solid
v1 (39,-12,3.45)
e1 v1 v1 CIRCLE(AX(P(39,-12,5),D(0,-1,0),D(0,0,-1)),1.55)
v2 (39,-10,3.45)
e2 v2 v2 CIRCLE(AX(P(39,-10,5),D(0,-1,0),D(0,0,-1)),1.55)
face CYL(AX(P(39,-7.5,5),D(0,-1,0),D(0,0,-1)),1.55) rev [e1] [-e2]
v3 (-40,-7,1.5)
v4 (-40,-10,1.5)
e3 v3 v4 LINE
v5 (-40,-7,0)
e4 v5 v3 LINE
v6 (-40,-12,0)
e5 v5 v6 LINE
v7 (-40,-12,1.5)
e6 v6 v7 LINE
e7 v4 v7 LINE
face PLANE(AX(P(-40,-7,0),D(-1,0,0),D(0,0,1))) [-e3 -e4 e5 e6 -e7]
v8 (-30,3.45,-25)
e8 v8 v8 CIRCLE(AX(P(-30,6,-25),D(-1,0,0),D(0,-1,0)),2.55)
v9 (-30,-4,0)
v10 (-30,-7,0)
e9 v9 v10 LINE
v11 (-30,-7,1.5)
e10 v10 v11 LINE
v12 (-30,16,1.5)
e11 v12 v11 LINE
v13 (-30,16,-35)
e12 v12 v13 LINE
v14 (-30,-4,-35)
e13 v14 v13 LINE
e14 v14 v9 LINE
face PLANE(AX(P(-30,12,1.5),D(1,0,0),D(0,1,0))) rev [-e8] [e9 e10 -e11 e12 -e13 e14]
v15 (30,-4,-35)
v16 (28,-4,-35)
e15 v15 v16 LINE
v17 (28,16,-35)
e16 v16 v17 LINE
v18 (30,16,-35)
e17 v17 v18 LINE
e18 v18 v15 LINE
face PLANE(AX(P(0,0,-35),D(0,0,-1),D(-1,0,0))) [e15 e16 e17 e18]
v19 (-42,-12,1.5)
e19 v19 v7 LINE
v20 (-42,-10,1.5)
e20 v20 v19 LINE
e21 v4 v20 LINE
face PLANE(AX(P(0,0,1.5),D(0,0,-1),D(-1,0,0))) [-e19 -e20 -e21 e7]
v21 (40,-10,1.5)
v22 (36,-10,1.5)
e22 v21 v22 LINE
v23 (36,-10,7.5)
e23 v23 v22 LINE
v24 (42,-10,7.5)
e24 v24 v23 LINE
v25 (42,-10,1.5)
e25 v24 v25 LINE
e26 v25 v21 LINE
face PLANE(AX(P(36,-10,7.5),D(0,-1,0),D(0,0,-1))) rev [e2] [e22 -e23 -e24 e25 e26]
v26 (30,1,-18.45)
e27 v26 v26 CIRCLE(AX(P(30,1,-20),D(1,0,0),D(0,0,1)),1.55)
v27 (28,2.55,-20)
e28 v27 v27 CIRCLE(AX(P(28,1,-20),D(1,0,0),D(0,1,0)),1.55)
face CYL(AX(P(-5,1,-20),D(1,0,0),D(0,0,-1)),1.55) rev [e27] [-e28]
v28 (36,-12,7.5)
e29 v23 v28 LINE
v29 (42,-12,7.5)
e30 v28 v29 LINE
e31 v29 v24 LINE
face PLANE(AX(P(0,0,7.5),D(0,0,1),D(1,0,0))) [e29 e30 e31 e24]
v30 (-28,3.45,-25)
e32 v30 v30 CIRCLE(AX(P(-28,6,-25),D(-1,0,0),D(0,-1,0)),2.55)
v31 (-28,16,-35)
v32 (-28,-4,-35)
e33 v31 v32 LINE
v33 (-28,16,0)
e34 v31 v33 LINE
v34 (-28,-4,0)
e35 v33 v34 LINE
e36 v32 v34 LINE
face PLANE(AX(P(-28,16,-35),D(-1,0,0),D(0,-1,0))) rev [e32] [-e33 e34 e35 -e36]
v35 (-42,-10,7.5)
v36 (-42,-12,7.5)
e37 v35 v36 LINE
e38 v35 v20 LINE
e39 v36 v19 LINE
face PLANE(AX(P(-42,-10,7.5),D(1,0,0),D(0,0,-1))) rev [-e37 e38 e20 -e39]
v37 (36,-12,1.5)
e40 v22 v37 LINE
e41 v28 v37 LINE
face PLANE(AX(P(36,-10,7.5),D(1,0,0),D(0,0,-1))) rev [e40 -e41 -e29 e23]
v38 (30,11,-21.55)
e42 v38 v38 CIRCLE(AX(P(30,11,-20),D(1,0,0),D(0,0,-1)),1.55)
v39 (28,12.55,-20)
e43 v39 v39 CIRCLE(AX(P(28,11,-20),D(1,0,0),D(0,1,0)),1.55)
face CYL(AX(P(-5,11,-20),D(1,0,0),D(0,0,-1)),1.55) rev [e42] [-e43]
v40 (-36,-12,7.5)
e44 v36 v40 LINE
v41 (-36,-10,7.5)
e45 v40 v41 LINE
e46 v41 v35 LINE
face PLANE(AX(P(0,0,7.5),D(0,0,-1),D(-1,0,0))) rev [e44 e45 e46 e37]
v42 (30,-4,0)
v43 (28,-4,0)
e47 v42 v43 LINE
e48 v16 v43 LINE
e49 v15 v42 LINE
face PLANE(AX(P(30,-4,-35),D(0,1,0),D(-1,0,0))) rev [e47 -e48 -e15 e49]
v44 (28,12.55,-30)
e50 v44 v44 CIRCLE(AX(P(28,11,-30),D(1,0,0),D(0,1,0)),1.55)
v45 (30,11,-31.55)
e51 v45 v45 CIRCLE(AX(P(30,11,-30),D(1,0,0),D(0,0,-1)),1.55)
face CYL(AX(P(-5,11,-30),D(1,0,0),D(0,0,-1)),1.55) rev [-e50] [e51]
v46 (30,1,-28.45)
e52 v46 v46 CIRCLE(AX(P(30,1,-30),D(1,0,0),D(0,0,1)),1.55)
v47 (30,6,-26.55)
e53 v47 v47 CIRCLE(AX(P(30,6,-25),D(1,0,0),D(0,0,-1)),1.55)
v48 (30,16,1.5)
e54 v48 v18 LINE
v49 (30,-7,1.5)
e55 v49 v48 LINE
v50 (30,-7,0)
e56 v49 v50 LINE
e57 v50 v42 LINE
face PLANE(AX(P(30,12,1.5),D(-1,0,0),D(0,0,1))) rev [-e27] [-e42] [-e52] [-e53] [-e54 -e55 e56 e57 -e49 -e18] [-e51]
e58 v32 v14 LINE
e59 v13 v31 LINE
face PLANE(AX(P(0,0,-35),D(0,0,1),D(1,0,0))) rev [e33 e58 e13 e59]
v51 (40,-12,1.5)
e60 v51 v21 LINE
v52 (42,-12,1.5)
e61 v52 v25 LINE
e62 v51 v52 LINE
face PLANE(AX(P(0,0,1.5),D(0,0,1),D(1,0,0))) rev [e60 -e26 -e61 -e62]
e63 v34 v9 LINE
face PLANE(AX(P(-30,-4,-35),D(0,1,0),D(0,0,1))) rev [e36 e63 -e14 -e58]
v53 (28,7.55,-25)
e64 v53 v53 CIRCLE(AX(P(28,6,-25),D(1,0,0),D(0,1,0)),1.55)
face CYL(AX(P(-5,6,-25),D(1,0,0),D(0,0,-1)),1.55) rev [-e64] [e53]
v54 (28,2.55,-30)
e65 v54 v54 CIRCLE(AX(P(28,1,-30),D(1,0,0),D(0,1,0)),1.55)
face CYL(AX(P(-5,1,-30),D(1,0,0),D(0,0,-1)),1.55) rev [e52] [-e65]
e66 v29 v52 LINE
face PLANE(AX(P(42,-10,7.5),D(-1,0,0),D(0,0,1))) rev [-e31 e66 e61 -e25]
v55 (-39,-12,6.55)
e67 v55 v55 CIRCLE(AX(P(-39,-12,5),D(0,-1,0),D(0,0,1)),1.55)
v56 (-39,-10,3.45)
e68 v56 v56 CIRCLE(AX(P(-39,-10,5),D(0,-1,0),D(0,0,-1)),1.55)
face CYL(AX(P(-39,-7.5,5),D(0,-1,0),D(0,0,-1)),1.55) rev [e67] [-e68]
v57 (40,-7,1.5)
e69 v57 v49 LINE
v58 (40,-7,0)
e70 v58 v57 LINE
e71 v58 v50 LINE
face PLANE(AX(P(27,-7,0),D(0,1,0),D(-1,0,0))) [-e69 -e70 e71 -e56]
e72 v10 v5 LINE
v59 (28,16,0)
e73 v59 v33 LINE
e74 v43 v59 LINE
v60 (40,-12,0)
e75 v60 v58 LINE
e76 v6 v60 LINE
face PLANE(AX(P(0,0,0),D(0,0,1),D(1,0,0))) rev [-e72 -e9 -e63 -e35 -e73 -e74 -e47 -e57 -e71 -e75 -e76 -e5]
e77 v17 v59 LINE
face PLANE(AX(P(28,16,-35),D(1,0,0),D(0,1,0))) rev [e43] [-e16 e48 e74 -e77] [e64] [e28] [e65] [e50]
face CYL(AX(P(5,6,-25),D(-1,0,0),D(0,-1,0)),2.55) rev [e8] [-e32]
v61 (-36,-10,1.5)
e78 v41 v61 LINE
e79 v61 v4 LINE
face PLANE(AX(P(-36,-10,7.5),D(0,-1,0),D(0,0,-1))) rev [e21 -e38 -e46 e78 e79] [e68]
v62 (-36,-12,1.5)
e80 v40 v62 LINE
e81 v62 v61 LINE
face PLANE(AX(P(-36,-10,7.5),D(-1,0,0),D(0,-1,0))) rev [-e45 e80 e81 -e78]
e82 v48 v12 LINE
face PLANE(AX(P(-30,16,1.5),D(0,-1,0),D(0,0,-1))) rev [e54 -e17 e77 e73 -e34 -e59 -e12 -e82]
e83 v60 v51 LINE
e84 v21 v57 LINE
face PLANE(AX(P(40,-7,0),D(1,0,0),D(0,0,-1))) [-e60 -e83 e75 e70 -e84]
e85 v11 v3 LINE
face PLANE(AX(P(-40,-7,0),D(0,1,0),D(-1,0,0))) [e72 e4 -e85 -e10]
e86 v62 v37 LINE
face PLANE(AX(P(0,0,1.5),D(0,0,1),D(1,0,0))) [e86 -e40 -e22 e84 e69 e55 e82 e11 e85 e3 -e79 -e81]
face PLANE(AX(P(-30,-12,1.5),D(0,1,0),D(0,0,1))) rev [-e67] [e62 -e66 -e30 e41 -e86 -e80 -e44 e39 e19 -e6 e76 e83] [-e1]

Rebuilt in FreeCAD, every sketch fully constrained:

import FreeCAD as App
import Part
import Sketcher
from FreeCAD import Vector

doc = App.newDocument("Part")
body = doc.addObject("PartDesign::Body", "Body")

# Sketch on XY plane
sketch1 = body.newObject("Sketcher::SketchObject", "Sketch")
sketch1.AttachmentSupport = (doc.getObject("XY_Plane"), [""])
sketch1.MapMode = "FlatFace"
sketch1.addGeometry([
    Part.LineSegment(Vector(-30, -12, 0), Vector(30, -12, 0)),
    Part.LineSegment(Vector(30, -12, 0), Vector(30, 16, 0)),
    Part.LineSegment(Vector(30, 16, 0), Vector(-30, 16, 0)),
    Part.LineSegment(Vector(-30, 16, 0), Vector(-30, -12, 0)),
], False)
sketch1.addConstraint([
    Sketcher.Constraint("Coincident", 0, 2, 1, 1),
    Sketcher.Constraint("Coincident", 1, 2, 2, 1),
    Sketcher.Constraint("Coincident", 2, 2, 3, 1),
    Sketcher.Constraint("Coincident", 3, 2, 0, 1),
    Sketcher.Constraint("Horizontal", 0),
    Sketcher.Constraint("Vertical", 1),
    Sketcher.Constraint("Horizontal", 2),
    Sketcher.Constraint("Vertical", 3),
    Sketcher.Constraint("DistanceX", 0, 1, 0, 2, 60.0),
    Sketcher.Constraint("DistanceY", 1, 1, 1, 2, 28.0),
    Sketcher.Constraint("DistanceX", -1, 1, 0, 2, 30.0),
    Sketcher.Constraint("DistanceY", 0, 2, -1, 1, 12.0),
])
pad1 = body.newObject("PartDesign::Pad", "Pad")
pad1.Profile = sketch1
pad1.Length = 1.5

# Sketch on XY plane
sketch2 = body.newObject("Sketcher::SketchObject", "Sketch001")
sketch2.AttachmentSupport = (doc.getObject("XY_Plane"), [""])
sketch2.MapMode = "FlatFace"
sketch2.AttachmentOffset = App.Placement(Vector(0, 0, 1.5), App.Rotation())
sketch2.addGeometry([
    Part.LineSegment(Vector(-27, -7, 0), Vector(-40, -7, 0)),  # 0
    Part.LineSegment(Vector(-40, -7, 0), Vector(-40, -12, 0)),  # 1
    Part.LineSegment(Vector(-40, -12, 0), Vector(-27, -12, 0)),  # 2
    Part.LineSegment(Vector(-27, -12, 0), Vector(-27, -7, 0)),  # 3
    Part.LineSegment(Vector(40, -12, 0), Vector(40, -7, 0)),  # 4
    Part.LineSegment(Vector(40, -7, 0), Vector(27, -7, 0)),  # 5
    Part.LineSegment(Vector(27, -7, 0), Vector(27, -12, 0)),  # 6
    Part.LineSegment(Vector(27, -12, 0), Vector(40, -12, 0)),  # 7
], False)
sketch2.addConstraint([
    Sketcher.Constraint("Coincident", 0, 2, 1, 1),
    Sketcher.Constraint("Coincident", 1, 2, 2, 1),
    Sketcher.Constraint("Coincident", 2, 2, 3, 1),
    Sketcher.Constraint("Coincident", 3, 2, 0, 1),
    Sketcher.Constraint("Coincident", 4, 2, 5, 1),
    Sketcher.Constraint("Coincident", 5, 2, 6, 1),
    Sketcher.Constraint("Coincident", 6, 2, 7, 1),
    Sketcher.Constraint("Coincident", 7, 2, 4, 1),
    Sketcher.Constraint("Horizontal", 0),
    Sketcher.Constraint("Vertical", 1),
    Sketcher.Constraint("Horizontal", 2),
    Sketcher.Constraint("Vertical", 3),
    Sketcher.Constraint("Vertical", 4),
    Sketcher.Constraint("Horizontal", 5),
    Sketcher.Constraint("Vertical", 6),
    Sketcher.Constraint("Horizontal", 7),
    Sketcher.Constraint("Symmetric", 0, 2, 4, 2, -2),
    Sketcher.Constraint("Symmetric", 2, 2, 6, 2, -2),
    Sketcher.Constraint("DistanceX", 0, 2, 0, 1, 13.0),
    Sketcher.Constraint("DistanceY", 1, 2, 1, 1, 5.0),
    Sketcher.Constraint("DistanceX", 0, 2, -1, 1, 40.0),
    Sketcher.Constraint("DistanceY", 0, 2, -1, 1, 7.0),
])
pad2 = body.newObject("PartDesign::Pad", "Pad001")
pad2.Profile = sketch2
pad2.Length = 1.5
pad2.Reversed = True

# Sketch on XY plane
sketch3 = body.newObject("Sketcher::SketchObject", "Sketch002")
sketch3.AttachmentSupport = (doc.getObject("XY_Plane"), [""])
sketch3.MapMode = "FlatFace"
sketch3.AttachmentOffset = App.Placement(Vector(0, 0, 1.5), App.Rotation())
sketch3.addGeometry([
    Part.LineSegment(Vector(36, -10, 0), Vector(36, -12, 0)),  # 0
    Part.LineSegment(Vector(36, -12, 0), Vector(42, -12, 0)),  # 1
    Part.LineSegment(Vector(42, -12, 0), Vector(42, -10, 0)),  # 2
    Part.LineSegment(Vector(42, -10, 0), Vector(36, -10, 0)),  # 3
    Part.LineSegment(Vector(-42, -10, 0), Vector(-42, -12, 0)),  # 4
    Part.LineSegment(Vector(-42, -12, 0), Vector(-36, -12, 0)),  # 5
    Part.LineSegment(Vector(-36, -12, 0), Vector(-36, -10, 0)),  # 6
    Part.LineSegment(Vector(-36, -10, 0), Vector(-42, -10, 0)),  # 7
], False)
sketch3.addConstraint([
    Sketcher.Constraint("Coincident", 0, 2, 1, 1),
    Sketcher.Constraint("Coincident", 1, 2, 2, 1),
    Sketcher.Constraint("Coincident", 2, 2, 3, 1),
    Sketcher.Constraint("Coincident", 3, 2, 0, 1),
    Sketcher.Constraint("Coincident", 4, 2, 5, 1),
    Sketcher.Constraint("Coincident", 5, 2, 6, 1),
    Sketcher.Constraint("Coincident", 6, 2, 7, 1),
    Sketcher.Constraint("Coincident", 7, 2, 4, 1),
    Sketcher.Constraint("Vertical", 0),
    Sketcher.Constraint("Horizontal", 1),
    Sketcher.Constraint("Vertical", 2),
    Sketcher.Constraint("Horizontal", 3),
    Sketcher.Constraint("Vertical", 4),
    Sketcher.Constraint("Horizontal", 5),
    Sketcher.Constraint("Vertical", 6),
    Sketcher.Constraint("Horizontal", 7),
    Sketcher.Constraint("Symmetric", 1, 2, 4, 2, -2),
    Sketcher.Constraint("Symmetric", 3, 2, 6, 2, -2),
    Sketcher.Constraint("DistanceX", 1, 1, 1, 2, 6.0),
    Sketcher.Constraint("DistanceY", 0, 2, 0, 1, 2.0),
    Sketcher.Constraint("DistanceX", -1, 1, 0, 2, 36.0),
    Sketcher.Constraint("DistanceY", 0, 2, -1, 1, 12.0),
])
pad3 = body.newObject("PartDesign::Pad", "Pad002")
pad3.Profile = sketch3
pad3.Length = 6

# Sketch on XZ plane
sketch4 = body.newObject("Sketcher::SketchObject", "Sketch003")
sketch4.AttachmentSupport = (doc.getObject("XZ_Plane"), [""])
sketch4.MapMode = "FlatFace"
sketch4.AttachmentOffset = App.Placement(Vector(0, 0, 12), App.Rotation())
sketch4.addGeometry([
    Part.Circle(Vector(39, 5, 0), Vector(0, 0, 1), 1.6),
    Part.Circle(Vector(-39, 5, 0), Vector(0, 0, 1), 1.6),
], False)
sketch4.addConstraint([
    Sketcher.Constraint("Equal", 0, 1),
    Sketcher.Constraint("Symmetric", 0, 3, 1, 3, -2),
    Sketcher.Constraint("Diameter", 0, 3.1),
    Sketcher.Constraint("DistanceX", -1, 1, 0, 3, 39.0),
    Sketcher.Constraint("DistanceY", -1, 1, 0, 3, 5.0),
])
pocket1 = body.newObject("PartDesign::Pocket", "Pocket")
pocket1.Profile = sketch4
pocket1.Length = 4.5

# Sketch on XY plane
sketch5 = body.newObject("Sketcher::SketchObject", "Sketch004")
sketch5.AttachmentSupport = (doc.getObject("XY_Plane"), [""])
sketch5.MapMode = "FlatFace"
sketch5.addGeometry([
    Part.LineSegment(Vector(-28, 16, 0), Vector(-28, -4, 0)),  # 0
    Part.LineSegment(Vector(-28, -4, 0), Vector(-30, -4, 0)),  # 1
    Part.LineSegment(Vector(-30, -4, 0), Vector(-30, 16, 0)),  # 2
    Part.LineSegment(Vector(-30, 16, 0), Vector(-28, 16, 0)),  # 3
    Part.LineSegment(Vector(30, 16, 0), Vector(30, -4, 0)),  # 4
    Part.LineSegment(Vector(30, -4, 0), Vector(28, -4, 0)),  # 5
    Part.LineSegment(Vector(28, -4, 0), Vector(28, 16, 0)),  # 6
    Part.LineSegment(Vector(28, 16, 0), Vector(30, 16, 0)),  # 7
], False)
sketch5.addConstraint([
    Sketcher.Constraint("Coincident", 0, 2, 1, 1),
    Sketcher.Constraint("Coincident", 1, 2, 2, 1),
    Sketcher.Constraint("Coincident", 2, 2, 3, 1),
    Sketcher.Constraint("Coincident", 3, 2, 0, 1),
    Sketcher.Constraint("Coincident", 4, 2, 5, 1),
    Sketcher.Constraint("Coincident", 5, 2, 6, 1),
    Sketcher.Constraint("Coincident", 6, 2, 7, 1),
    Sketcher.Constraint("Coincident", 7, 2, 4, 1),
    Sketcher.Constraint("Vertical", 0),
    Sketcher.Constraint("Horizontal", 1),
    Sketcher.Constraint("Vertical", 2),
    Sketcher.Constraint("Horizontal", 3),
    Sketcher.Constraint("Vertical", 4),
    Sketcher.Constraint("Horizontal", 5),
    Sketcher.Constraint("Vertical", 6),
    Sketcher.Constraint("Horizontal", 7),
    Sketcher.Constraint("Symmetric", 1, 2, 4, 2, -2),
    Sketcher.Constraint("Symmetric", 3, 2, 6, 2, -2),
    Sketcher.Constraint("DistanceX", 1, 2, 1, 1, 2.0),
    Sketcher.Constraint("DistanceY", 0, 2, 0, 1, 20.0),
    Sketcher.Constraint("DistanceX", 0, 2, -1, 1, 28.0),
    Sketcher.Constraint("DistanceY", 0, 2, -1, 1, 4.0),
])
pad4 = body.newObject("PartDesign::Pad", "Pad003")
pad4.Profile = sketch5
pad4.Length = 35
pad4.Reversed = True

# Sketch on YZ plane
sketch6 = body.newObject("Sketcher::SketchObject", "Sketch005")
sketch6.AttachmentSupport = (doc.getObject("YZ_Plane"), [""])
sketch6.MapMode = "FlatFace"
sketch6.AttachmentOffset = App.Placement(Vector(0, 0, 30), App.Rotation())
sketch6.addGeometry([
    Part.Circle(Vector(6, -25, 0), Vector(0, 0, 1), 1.6),  # 0
    Part.Circle(Vector(11, -30, 0), Vector(0, 0, 1), 1.6),  # 1
    Part.Circle(Vector(1, -30, 0), Vector(0, 0, 1), 1.6),  # 2
    Part.Circle(Vector(1, -20, 0), Vector(0, 0, 1), 1.6),  # 3
    Part.Circle(Vector(11, -20, 0), Vector(0, 0, 1), 1.6),  # 4
], False)
sketch6.addConstraint([
    Sketcher.Constraint("Equal", 0, 1),
    Sketcher.Constraint("Equal", 1, 2),
    Sketcher.Constraint("Equal", 2, 3),
    Sketcher.Constraint("Equal", 3, 4),
    Sketcher.Constraint("Horizontal", 1, 3, 2, 3),
    Sketcher.Constraint("Horizontal", 3, 3, 4, 3),
    Sketcher.Constraint("Vertical", 2, 3, 3, 3),
    Sketcher.Constraint("Vertical", 1, 3, 4, 3),
    Sketcher.Constraint("Diameter", 0, 3.1),
    Sketcher.Constraint("DistanceX", -1, 1, 0, 3, 6.0),
    Sketcher.Constraint("DistanceY", 0, 3, -1, 1, 25.0),
    Sketcher.Constraint("DistanceX", -1, 1, 1, 3, 11.0),
    Sketcher.Constraint("DistanceY", 1, 3, -1, 1, 30.0),
    Sketcher.Constraint("DistanceX", -1, 1, 2, 3, 1.0),
    Sketcher.Constraint("DistanceY", 3, 3, -1, 1, 20.0),
])
pocket2 = body.newObject("PartDesign::Pocket", "Pocket001")
pocket2.Profile = sketch6
pocket2.Length = 35

# Sketch on YZ plane
sketch7 = body.newObject("Sketcher::SketchObject", "Sketch006")
sketch7.AttachmentSupport = (doc.getObject("YZ_Plane"), [""])
sketch7.MapMode = "FlatFace"
sketch7.AttachmentOffset = App.Placement(Vector(0, 0, -30), App.Rotation())
sketch7.addGeometry(Part.Circle(Vector(6, -25, 0), Vector(0, 0, 1), 2.5), False)
sketch7.addConstraint([
    Sketcher.Constraint("Diameter", 0, 5.1),
    Sketcher.Constraint("DistanceX", -1, 1, 0, 3, 6.0),
    Sketcher.Constraint("DistanceY", 0, 3, -1, 1, 25.0),
])
pocket3 = body.newObject("PartDesign::Pocket", "Pocket002")
pocket3.Profile = sketch7
pocket3.Length = 35
pocket3.Reversed = True

doc.recompute()
